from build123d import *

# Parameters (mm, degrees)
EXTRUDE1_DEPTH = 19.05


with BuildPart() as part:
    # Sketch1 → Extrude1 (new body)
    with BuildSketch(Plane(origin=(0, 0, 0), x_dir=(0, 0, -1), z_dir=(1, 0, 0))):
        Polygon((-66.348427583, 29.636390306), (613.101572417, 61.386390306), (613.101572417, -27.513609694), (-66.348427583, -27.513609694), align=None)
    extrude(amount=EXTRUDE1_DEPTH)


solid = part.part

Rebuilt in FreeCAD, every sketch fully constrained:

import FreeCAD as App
import Part
import Sketcher
Q = App.Units.Quantity


def add_polygon(sketch, points):
    """Adds a closed chain of lines whose ends are joined by coincident constraints."""
    first, n = sketch.GeometryCount, len(points)
    for a, b in zip(points, points[1:] + points[:1]):
        sketch.addGeometry(Part.LineSegment(App.Vector(*a, 0), App.Vector(*b, 0)), False)
    for i in range(n):
        sketch.addConstraint(Sketcher.Constraint("Coincident", first + i, 2, first + (i + 1) % n, 1))

doc = App.newDocument("Part")
params = doc.addObject("Spreadsheet::Sheet", "Params")
for row, (alias, value) in enumerate([
    ("sketch1_width", "3.5 in"),
    ("sketch1_width2", "2.25 in"),
    ("sketch1_height", "26.75 in"),
    ("pad1_length", "0.75 in"),
], start=1):
    params.set(f"A{row}", alias)
    params.set(f"B{row}", "=" + value)
    params.setAlias(f"B{row}", alias)

body = doc.addObject("PartDesign::Body", "Body")

sketch1 = body.newObject("Sketcher::SketchObject", "Sketch")
sketch1.AttachmentSupport = (doc.getObject("YZ_Plane"), [""])
sketch1.MapMode = "FlatFace"
add_polygon(sketch1, [(61.38639, -613.101572), (29.63639, 66.348428), (-27.51361, 66.348428), (-27.51361, -613.101572)])
sketch1.addConstraint([
    Sketcher.Constraint("Horizontal", 1),
    Sketcher.Constraint("Vertical", 2),
    Sketcher.Constraint("Horizontal", 3),
    Sketcher.Constraint("DistanceX", 3, 1, 3, 2, Q("3.5 in")),
    Sketcher.Constraint("DistanceX", 1, 2, 1, 1, Q("2.25 in")),
    Sketcher.Constraint("DistanceY", 2, 2, 2, 1, Q("26.75 in")),
    Sketcher.Constraint("DistanceX", -1, 1, 0, 2, Q("29.63639 mm")),
    Sketcher.Constraint("DistanceY", -1, 1, 0, 2, Q("66.348428 mm")),
])
sketch1.setExpression("Constraints[7]", "Params.sketch1_width")
sketch1.setExpression("Constraints[8]", "Params.sketch1_width2")
sketch1.setExpression("Constraints[9]", "Params.sketch1_height")
pad1 = body.newObject("PartDesign::Pad", "Pad")
pad1.Profile = sketch1
pad1.setExpression("Length", "Params.pad1_length")

doc.recompute()
